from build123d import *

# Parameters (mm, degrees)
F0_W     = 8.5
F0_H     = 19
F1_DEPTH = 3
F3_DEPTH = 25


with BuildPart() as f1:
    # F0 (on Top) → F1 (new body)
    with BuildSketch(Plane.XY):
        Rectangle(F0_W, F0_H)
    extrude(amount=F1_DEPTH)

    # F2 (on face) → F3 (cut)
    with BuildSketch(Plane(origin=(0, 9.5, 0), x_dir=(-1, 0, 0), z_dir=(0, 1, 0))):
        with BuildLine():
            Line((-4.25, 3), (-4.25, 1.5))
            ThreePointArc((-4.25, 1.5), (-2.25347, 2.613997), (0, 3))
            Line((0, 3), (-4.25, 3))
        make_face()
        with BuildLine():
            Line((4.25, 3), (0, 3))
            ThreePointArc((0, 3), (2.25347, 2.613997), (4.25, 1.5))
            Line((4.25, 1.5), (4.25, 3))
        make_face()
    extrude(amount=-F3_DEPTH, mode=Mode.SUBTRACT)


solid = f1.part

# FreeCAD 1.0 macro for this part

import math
import FreeCAD as App
import Part
import Sketcher
Q = App.Units.Quantity

doc = App.newDocument("Part")
params = doc.addObject("Spreadsheet::Sheet", "Params")
for row, (alias, value) in enumerate([
    ("sketch1_height", "19 mm"),
    ("sketch1_width", "8.5 mm"),
    ("pad1_length", "3 mm"),
    ("sketch2_height", "1.5 mm"),
    ("sketch2_width", "4.25 mm"),
    ("pocket1_length", "25 mm"),
], start=1):
    params.set(f"A{row}", alias)
    params.set(f"B{row}", "=" + value)
    params.setAlias(f"B{row}", alias)

body = doc.addObject("PartDesign::Body", "Body")

# Sketch on XY plane
sketch1 = doc.addObject("Sketcher::SketchObject", "Sketch")
body.addObject(sketch1)
sketch1.AttachmentSupport = (doc.XY_Plane, [""])
sketch1.MapMode = "FlatFace"
sketch1.addGeometry(Part.LineSegment(App.Vector(-4, 10, 0), App.Vector(-4, -10, 0)), False)
sketch1.addGeometry(Part.LineSegment(App.Vector(-4, -10, 0), App.Vector(4, -10, 0)), False)
sketch1.addGeometry(Part.LineSegment(App.Vector(4, -10, 0), App.Vector(4, 10, 0)), False)
sketch1.addGeometry(Part.LineSegment(App.Vector(4, 10, 0), App.Vector(-4, 10, 0)), False)
sketch1.addConstraint(Sketcher.Constraint("Coincident", 0, 2, 1, 1))
sketch1.addConstraint(Sketcher.Constraint("Coincident", 1, 2, 2, 1))
sketch1.addConstraint(Sketcher.Constraint("Coincident", 2, 2, 3, 1))
sketch1.addConstraint(Sketcher.Constraint("Coincident", 3, 2, 0, 1))
sketch1.addConstraint(Sketcher.Constraint("Vertical", 0))
sketch1.addConstraint(Sketcher.Constraint("Horizontal", 1))
sketch1.addConstraint(Sketcher.Constraint("Vertical", 2))
sketch1.addConstraint(Sketcher.Constraint("Horizontal", 3))
sketch1.addConstraint(Sketcher.Constraint("Symmetric", 0, 2, 2, 2, -1, 1))
sketch1.addConstraint(Sketcher.Constraint("DistanceY", 0, 2, 0, 1, Q("19 mm")))
sketch1.addConstraint(Sketcher.Constraint("DistanceX", 1, 1, 1, 2, Q("8.5 mm")))
sketch1.setExpression("Constraints[9]", "Params.sketch1_height")
sketch1.setExpression("Constraints[10]", "Params.sketch1_width")
pad1 = doc.addObject("PartDesign::Pad", "Pad")
body.addObject(pad1)
pad1.Profile = sketch1
pad1.setExpression("Length", "Params.pad1_length")

# Sketch on XZ plane
sketch2 = doc.addObject("Sketcher::SketchObject", "Sketch001")
body.addObject(sketch2)
sketch2.AttachmentSupport = (doc.XZ_Plane, [""])
sketch2.MapMode = "FlatFace"
sketch2.AttachmentOffset = App.Placement(App.Vector(0, 0, -9.5), App.Rotation())
sketch2.addGeometry(Part.LineSegment(App.Vector(4.2, 3, 0), App.Vector(4.2, 1.5, 0)), False)
sketch2.addGeometry(Part.ArcOfCircle(Part.Circle(App.Vector(0, -3.8, 0), App.Vector(0, 0, 1), 6.8), math.radians(51), math.radians(90)), False)
sketch2.addGeometry(Part.LineSegment(App.Vector(0, 3, 0), App.Vector(4.2, 3, 0)), False)
sketch2.addGeometry(Part.LineSegment(App.Vector(-4.2, 3, 0), App.Vector(0, 3, 0)), False)
sketch2.addGeometry(Part.ArcOfCircle(Part.Circle(App.Vector(0, -3.8, 0), App.Vector(0, 0, 1), 6.8), math.radians(90), math.radians(129)), False)
sketch2.addGeometry(Part.LineSegment(App.Vector(-4.2, 1.5, 0), App.Vector(-4.2, 3, 0)), False)
sketch2.addConstraint(Sketcher.Constraint("Coincident", 0, 2, 1, 1))
sketch2.addConstraint(Sketcher.Constraint("Tangent", 1, 2, 2, 1))
sketch2.addConstraint(Sketcher.Constraint("Coincident", 2, 2, 0, 1))
sketch2.addConstraint(Sketcher.Constraint("Tangent", 3, 2, 4, 1))
sketch2.addConstraint(Sketcher.Constraint("Coincident", 4, 2, 5, 1))
sketch2.addConstraint(Sketcher.Constraint("Coincident", 5, 2, 3, 1))
sketch2.addConstraint(Sketcher.Constraint("Vertical", 0))
sketch2.addConstraint(Sketcher.Constraint("Horizontal", 2))
sketch2.addConstraint(Sketcher.Constraint("Horizontal", 3))
sketch2.addConstraint(Sketcher.Constraint("Vertical", 5))
sketch2.addConstraint(Sketcher.Constraint("Coincident", 4, 3, 1, 3))
sketch2.addConstraint(Sketcher.Constraint("Equal", 1, 4))
sketch2.addConstraint(Sketcher.Constraint("Symmetric", 0, 2, 4, 2, -2))
sketch2.addConstraint(Sketcher.Constraint("DistanceY", 0, 2, 0, 1, Q("1.5 mm")))
sketch2.addConstraint(Sketcher.Constraint("DistanceY", -1, 1, 1, 2, Q("3 mm")))
sketch2.addConstraint(Sketcher.Constraint("DistanceX", 2, 1, 2, 2, Q("4.25 mm")))
sketch2.setExpression("Constraints[13]", "Params.sketch2_height")
sketch2.setExpression("Constraints[15]", "Params.sketch2_width")
pocket1 = doc.addObject("PartDesign::Pocket", "Pocket")
body.addObject(pocket1)
pocket1.Profile = sketch2
pocket1.setExpression("Length", "Params.pocket1_length")
pocket1.Reversed = True

doc.recompute()
